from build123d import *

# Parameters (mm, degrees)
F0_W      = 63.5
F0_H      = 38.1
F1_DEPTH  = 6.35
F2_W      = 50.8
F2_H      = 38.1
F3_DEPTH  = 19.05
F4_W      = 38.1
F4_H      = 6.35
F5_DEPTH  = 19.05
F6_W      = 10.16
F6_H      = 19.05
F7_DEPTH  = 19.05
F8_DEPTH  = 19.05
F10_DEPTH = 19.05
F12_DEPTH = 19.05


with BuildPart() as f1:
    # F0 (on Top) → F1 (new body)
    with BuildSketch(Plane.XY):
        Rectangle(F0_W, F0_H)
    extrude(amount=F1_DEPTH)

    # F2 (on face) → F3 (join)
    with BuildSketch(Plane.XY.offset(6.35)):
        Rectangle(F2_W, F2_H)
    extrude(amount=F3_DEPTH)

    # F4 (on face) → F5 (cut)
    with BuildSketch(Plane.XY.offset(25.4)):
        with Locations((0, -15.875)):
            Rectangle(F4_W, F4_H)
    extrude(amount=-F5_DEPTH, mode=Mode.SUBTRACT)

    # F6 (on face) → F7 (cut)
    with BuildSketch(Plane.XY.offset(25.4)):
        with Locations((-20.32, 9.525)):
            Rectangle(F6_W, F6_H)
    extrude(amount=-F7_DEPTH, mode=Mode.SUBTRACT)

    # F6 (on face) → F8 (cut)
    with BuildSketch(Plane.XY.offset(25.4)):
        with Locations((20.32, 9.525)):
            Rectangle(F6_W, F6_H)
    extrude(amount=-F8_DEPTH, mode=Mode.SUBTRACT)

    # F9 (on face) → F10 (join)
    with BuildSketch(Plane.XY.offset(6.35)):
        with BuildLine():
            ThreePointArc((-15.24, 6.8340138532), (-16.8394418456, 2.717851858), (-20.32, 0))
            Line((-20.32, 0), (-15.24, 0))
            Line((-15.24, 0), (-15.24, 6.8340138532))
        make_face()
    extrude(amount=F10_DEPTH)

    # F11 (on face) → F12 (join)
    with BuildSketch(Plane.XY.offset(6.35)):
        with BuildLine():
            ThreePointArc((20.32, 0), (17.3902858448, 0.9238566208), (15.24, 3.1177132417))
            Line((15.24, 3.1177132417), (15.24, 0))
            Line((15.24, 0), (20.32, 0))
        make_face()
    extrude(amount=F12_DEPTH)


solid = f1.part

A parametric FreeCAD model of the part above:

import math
import FreeCAD as App
import Part
import Sketcher
from FreeCAD import Vector
Q = App.Units.Quantity


def add_polygon(sketch, points):
    """Adds a closed chain of lines whose ends are joined by coincident constraints."""
    first, n = sketch.GeometryCount, len(points)
    for a, b in zip(points, points[1:] + points[:1]):
        sketch.addGeometry(Part.LineSegment(App.Vector(*a, 0), App.Vector(*b, 0)), False)
    for i in range(n):
        sketch.addConstraint(Sketcher.Constraint("Coincident", first + i, 2, first + (i + 1) % n, 1))

doc = App.newDocument("Part")
body = doc.addObject("PartDesign::Body", "Body")

# Sketch on XY plane
sketch1 = body.newObject("Sketcher::SketchObject", "Sketch")
sketch1.AttachmentSupport = (doc.getObject("XY_Plane"), [""])
sketch1.MapMode = "FlatFace"
add_polygon(sketch1, [(-32, 19), (-32, -19), (32, -19), (32, 19)])  # lines 0-3
sketch1.addConstraint([
    Sketcher.Constraint("Vertical", 0),
    Sketcher.Constraint("Horizontal", 1),
    Sketcher.Constraint("Vertical", 2),
    Sketcher.Constraint("Horizontal", 3),
    Sketcher.Constraint("Symmetric", 0, 2, 2, 2, -1, 1),
    Sketcher.Constraint("DistanceX", 1, 1, 1, 2, Q("2.5 in")),
    Sketcher.Constraint("DistanceY", 0, 2, 0, 1, Q("1.5 in")),
])
pad1 = body.newObject("PartDesign::Pad", "Pad")
pad1.Profile = sketch1
pad1.Length = Q("0.25 in")

# Sketch on XY plane
sketch2 = body.newObject("Sketcher::SketchObject", "Sketch001")
sketch2.AttachmentSupport = (doc.getObject("XY_Plane"), [""])
sketch2.MapMode = "FlatFace"
sketch2.AttachmentOffset = App.Placement(Vector(0, 0, 0.25 * 25.4), App.Rotation())
add_polygon(sketch2, [(-25, 19), (-25, -19), (25, -19), (25, 19)])  # lines 0-3
sketch2.addConstraint([
    Sketcher.Constraint("Vertical", 0),
    Sketcher.Constraint("Horizontal", 1),
    Sketcher.Constraint("Vertical", 2),
    Sketcher.Constraint("Horizontal", 3),
    Sketcher.Constraint("Symmetric", 0, 2, 2, 2, -1, 1),
    Sketcher.Constraint("DistanceX", 1, 1, 1, 2, Q("2 in")),
    Sketcher.Constraint("DistanceY", 0, 2, 0, 1, Q("1.5 in")),
])
pad2 = body.newObject("PartDesign::Pad", "Pad001")
pad2.Profile = sketch2
pad2.Length = Q("0.75 in")

# Sketch on XY plane
sketch3 = body.newObject("Sketcher::SketchObject", "Sketch002")
sketch3.AttachmentSupport = (doc.getObject("XY_Plane"), [""])
sketch3.MapMode = "FlatFace"
sketch3.AttachmentOffset = App.Placement(Vector(0, 0, 1 * 25.4), App.Rotation())
add_polygon(sketch3, [(-19, -13), (-19, -19), (19, -19), (19, -13)])  # lines 0-3
sketch3.addConstraint([
    Sketcher.Constraint("Vertical", 0),
    Sketcher.Constraint("Horizontal", 1),
    Sketcher.Constraint("Vertical", 2),
    Sketcher.Constraint("Horizontal", 3),
    Sketcher.Constraint("DistanceX", 1, 1, 1, 2, Q("1.5 in")),
    Sketcher.Constraint("DistanceY", 0, 2, 0, 1, Q("0.25 in")),
    Sketcher.Constraint("DistanceY", 2, 2, -1, 1, Q("0.5 in")),
    Sketcher.Constraint("DistanceX", 0, 2, -1, 1, Q("0.75 in")),
])
pocket1 = body.newObject("PartDesign::Pocket", "Pocket")
pocket1.Profile = sketch3
pocket1.Length = Q("0.75 in")

# Sketch on XY plane
sketch4 = body.newObject("Sketcher::SketchObject", "Sketch003")
sketch4.AttachmentSupport = (doc.getObject("XY_Plane"), [""])
sketch4.MapMode = "FlatFace"
sketch4.AttachmentOffset = App.Placement(Vector(0, 0, 1 * 25.4), App.Rotation())
add_polygon(sketch4, [(-25, 19), (-25, 0), (-15, 0), (-15, 19)])  # lines 0-3
sketch4.addConstraint([
    Sketcher.Constraint("Vertical", 0),
    Sketcher.Constraint("Horizontal", 1),
    Sketcher.Constraint("Vertical", 2),
    Sketcher.Constraint("Horizontal", 3),
    Sketcher.Constraint("PointOnObject", 0, 2, -1),
    Sketcher.Constraint("DistanceX", 1, 1, 1, 2, Q("0.4 in")),
    Sketcher.Constraint("DistanceX", 0, 2, -1, 1, Q("1 in")),
    Sketcher.Constraint("DistanceY", 0, 2, 0, 1, Q("0.75 in")),
])
pocket2 = body.newObject("PartDesign::Pocket", "Pocket001")
pocket2.Profile = sketch4
pocket2.Length = Q("0.75 in")

# Sketch on XY plane
sketch5 = body.newObject("Sketcher::SketchObject", "Sketch004")
sketch5.AttachmentSupport = (doc.getObject("XY_Plane"), [""])
sketch5.MapMode = "FlatFace"
sketch5.AttachmentOffset = App.Placement(Vector(0, 0, 1 * 25.4), App.Rotation())
add_polygon(sketch5, [(15, 19), (15, 0), (25, 0), (25, 19)])  # lines 0-3
sketch5.addConstraint([
    Sketcher.Constraint("Vertical", 0),
    Sketcher.Constraint("Horizontal", 1),
    Sketcher.Constraint("Vertical", 2),
    Sketcher.Constraint("Horizontal", 3),
    Sketcher.Constraint("PointOnObject", 0, 2, -1),
    Sketcher.Constraint("DistanceX", 1, 1, 1, 2, Q("0.4 in")),
    Sketcher.Constraint("DistanceX", -1, 1, 1, 2, Q("1 in")),
    Sketcher.Constraint("DistanceY", 0, 2, 0, 1, Q("0.75 in")),
])
pocket3 = body.newObject("PartDesign::Pocket", "Pocket002")
pocket3.Profile = sketch5
pocket3.Length = Q("0.75 in")

# Sketch on XY plane
sketch6 = body.newObject("Sketcher::SketchObject", "Sketch005")
sketch6.AttachmentSupport = (doc.getObject("XY_Plane"), [""])
sketch6.MapMode = "FlatFace"
sketch6.AttachmentOffset = App.Placement(Vector(0, 0, 0.25 * 25.4), App.Rotation())
sketch6.addGeometry([
    Part.ArcOfCircle(Part.Circle(Vector(-24, 8, 0), Vector(0, 0, 1), 8), math.radians(-67), math.radians(-6)),
    Part.LineSegment(Vector(-20, 0, 0), Vector(-15, 0, 0)),
    Part.LineSegment(Vector(-15, 0, 0), Vector(-15, 7, 0)),
], False)
sketch6.addConstraint([
    Sketcher.Constraint("Coincident", 0, 1, 1, 1),
    Sketcher.Constraint("Coincident", 1, 2, 2, 1),
    Sketcher.Constraint("Coincident", 2, 2, 0, 2),
    Sketcher.Constraint("Horizontal", 1),
    Sketcher.Constraint("Vertical", 2),
    Sketcher.Constraint("PointOnObject", 0, 1, -1),
    Sketcher.Constraint("DistanceX", 1, 1, 1, 2, Q("0.2 in")),
    Sketcher.Constraint("DistanceX", 0, 1, -1, 1, Q("0.8 in")),
    Sketcher.Constraint("Radius", 0, Q("8.319894 mm")),
    Sketcher.Constraint("DistanceY", 2, 1, 2, 2, Q("6.834014 mm")),
])
pad3 = body.newObject("PartDesign::Pad", "Pad002")
pad3.Profile = sketch6
pad3.Length = Q("0.75 in")

# Sketch on XY plane
sketch7 = body.newObject("Sketcher::SketchObject", "Sketch006")
sketch7.AttachmentSupport = (doc.getObject("XY_Plane"), [""])
sketch7.MapMode = "FlatFace"
sketch7.AttachmentOffset = App.Placement(Vector(0, 0, 0.25 * 25.4), App.Rotation())
sketch7.addGeometry([
    Part.ArcOfCircle(Part.Circle(Vector(20.7, 6.3, 0), Vector(0, 0, 1), 6.3), math.radians(-150), math.radians(-93)),
    Part.LineSegment(Vector(15.2, 3.1, 0), Vector(15.2, 0, 0)),
    Part.LineSegment(Vector(15.2, 0, 0), Vector(20.3, 0, 0)),
], False)
sketch7.addConstraint([
    Sketcher.Constraint("Coincident", 0, 1, 1, 1),
    Sketcher.Constraint("Coincident", 1, 2, 2, 1),
    Sketcher.Constraint("Coincident", 2, 2, 0, 2),
    Sketcher.Constraint("Vertical", 1),
    Sketcher.Constraint("Horizontal", 2),
    Sketcher.Constraint("PointOnObject", 1, 2, -1),
    Sketcher.Constraint("DistanceX", 2, 1, 2, 2, Q("0.2 in")),
    Sketcher.Constraint("DistanceX", -1, 1, 0, 1, Q("0.6 in")),
    Sketcher.Constraint("Radius", 0, Q("6.33294 mm")),
    Sketcher.Constraint("DistanceY", 1, 2, 1, 1, Q("3.117713 mm")),
])
pad4 = body.newObject("PartDesign::Pad", "Pad003")
pad4.Profile = sketch7
pad4.Length = Q("0.75 in")

doc.recompute()
